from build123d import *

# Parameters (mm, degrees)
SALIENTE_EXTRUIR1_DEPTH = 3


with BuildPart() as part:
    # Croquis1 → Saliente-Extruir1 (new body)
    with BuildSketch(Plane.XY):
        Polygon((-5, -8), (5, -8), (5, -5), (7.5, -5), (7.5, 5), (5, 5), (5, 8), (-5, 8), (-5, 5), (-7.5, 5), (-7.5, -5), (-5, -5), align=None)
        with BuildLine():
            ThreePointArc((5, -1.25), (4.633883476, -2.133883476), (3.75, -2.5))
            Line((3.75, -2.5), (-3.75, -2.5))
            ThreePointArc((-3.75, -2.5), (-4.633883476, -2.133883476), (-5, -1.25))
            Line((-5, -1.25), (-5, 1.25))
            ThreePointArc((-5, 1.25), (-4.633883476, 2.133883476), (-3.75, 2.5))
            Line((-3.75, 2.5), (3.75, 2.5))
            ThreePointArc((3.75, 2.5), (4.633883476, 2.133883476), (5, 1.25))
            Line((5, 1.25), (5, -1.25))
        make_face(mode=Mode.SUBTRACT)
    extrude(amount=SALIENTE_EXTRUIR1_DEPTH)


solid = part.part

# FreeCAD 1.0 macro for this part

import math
import FreeCAD as App
import Part
import Sketcher

V = App.Vector

doc = App.newDocument("Part")
body = doc.addObject("PartDesign::Body", "Body")

# Sketch on XY plane
sketch1 = doc.addObject("Sketcher::SketchObject", "Sketch")
body.addObject(sketch1)
sketch1.AttachmentSupport = (doc.XY_Plane, [""])
sketch1.MapMode = "FlatFace"
sketch1.addGeometry([
    Part.LineSegment(V(-5, -8, 0), V(5, -8, 0)),  # 0
    Part.LineSegment(V(5, -8, 0), V(5, -5, 0)),  # 1
    Part.LineSegment(V(5, -5, 0), V(7.5, -5, 0)),  # 2
    Part.LineSegment(V(7.5, -5, 0), V(7.5, 5, 0)),  # 3
    Part.LineSegment(V(7.5, 5, 0), V(5, 5, 0)),  # 4
    Part.LineSegment(V(5, 5, 0), V(5, 8, 0)),  # 5
    Part.LineSegment(V(5, 8, 0), V(-5, 8, 0)),  # 6
    Part.LineSegment(V(-5, 8, 0), V(-5, 5, 0)),  # 7
    Part.LineSegment(V(-5, 5, 0), V(-7.5, 5, 0)),  # 8
    Part.LineSegment(V(-7.5, 5, 0), V(-7.5, -5, 0)),  # 9
    Part.LineSegment(V(-7.5, -5, 0), V(-5, -5, 0)),  # 10
    Part.LineSegment(V(-5, -5, 0), V(-5, -8, 0)),  # 11
    Part.LineSegment(V(5, 1.2, 0), V(5, -1.2, 0)),  # 12
    Part.ArcOfCircle(Part.Circle(V(3.7, -1.2, 0), V(0, 0, 1), 1.3), math.radians(-90), math.radians(0)),  # 13
    Part.LineSegment(V(3.8, -2.5, 0), V(-3.8, -2.5, 0)),  # 14
    Part.ArcOfCircle(Part.Circle(V(-3.7, -1.2, 0), V(0, 0, 1), 1.3), math.radians(-180), math.radians(-90)),  # 15
    Part.LineSegment(V(-5, -1.2, 0), V(-5, 1.2, 0)),  # 16
    Part.ArcOfCircle(Part.Circle(V(-3.7, 1.2, 0), V(0, 0, 1), 1.3), math.radians(90), math.radians(180)),  # 17
    Part.LineSegment(V(-3.8, 2.5, 0), V(3.8, 2.5, 0)),  # 18
    Part.ArcOfCircle(Part.Circle(V(3.7, 1.2, 0), V(0, 0, 1), 1.3), math.radians(0), math.radians(90)),  # 19
], False)
sketch1.addConstraint([
    Sketcher.Constraint("Coincident", 0, 2, 1, 1),
    Sketcher.Constraint("Coincident", 1, 2, 2, 1),
    Sketcher.Constraint("Coincident", 2, 2, 3, 1),
    Sketcher.Constraint("Coincident", 3, 2, 4, 1),
    Sketcher.Constraint("Coincident", 4, 2, 5, 1),
    Sketcher.Constraint("Coincident", 5, 2, 6, 1),
    Sketcher.Constraint("Coincident", 6, 2, 7, 1),
    Sketcher.Constraint("Coincident", 7, 2, 8, 1),
    Sketcher.Constraint("Coincident", 8, 2, 9, 1),
    Sketcher.Constraint("Coincident", 9, 2, 10, 1),
    Sketcher.Constraint("Coincident", 10, 2, 11, 1),
    Sketcher.Constraint("Coincident", 11, 2, 0, 1),
    Sketcher.Constraint("Tangent", 12, 2, 13, 2),
    Sketcher.Constraint("Tangent", 13, 1, 14, 1),
    Sketcher.Constraint("Tangent", 14, 2, 15, 2),
    Sketcher.Constraint("Tangent", 15, 1, 16, 1),
    Sketcher.Constraint("Tangent", 16, 2, 17, 2),
    Sketcher.Constraint("Tangent", 17, 1, 18, 1),
    Sketcher.Constraint("Tangent", 18, 2, 19, 2),
    Sketcher.Constraint("Tangent", 19, 1, 12, 1),
    Sketcher.Constraint("Horizontal", 0),
    Sketcher.Constraint("Vertical", 1),
    Sketcher.Constraint("Horizontal", 2),
    Sketcher.Constraint("Vertical", 3),
    Sketcher.Constraint("Horizontal", 4),
    Sketcher.Constraint("Vertical", 5),
    Sketcher.Constraint("Horizontal", 6),
    Sketcher.Constraint("Vertical", 7),
    Sketcher.Constraint("Horizontal", 8),
    Sketcher.Constraint("Vertical", 9),
    Sketcher.Constraint("Horizontal", 10),
    Sketcher.Constraint("Vertical", 11),
    Sketcher.Constraint("Vertical", 12),
    Sketcher.Constraint("Horizontal", 14),
    Sketcher.Constraint("Vertical", 16),
    Sketcher.Constraint("Horizontal", 18),
    Sketcher.Constraint("Equal", 13, 15),
    Sketcher.Constraint("Equal", 15, 17),
    Sketcher.Constraint("Equal", 17, 19),
    Sketcher.Constraint("Symmetric", 13, 3, 17, 3, -1, 1),
    Sketcher.Constraint("Symmetric", 0, 2, 6, 2, -1, 1),
    Sketcher.Constraint("Symmetric", 2, 2, 8, 2, -1, 1),
    Sketcher.Constraint("Symmetric", 4, 2, 10, 2, -1, 1),
    Sketcher.Constraint("Symmetric", 4, 2, 7, 2, -2),
    Sketcher.Constraint("Vertical", 5, 2, 12, 2),
    Sketcher.Constraint("Equal", 6, 3),
    Sketcher.Constraint("Equal", 10, 12),
    Sketcher.Constraint("DistanceX", 0, 1, 0, 2, 10.0),
    Sketcher.Constraint("DistanceY", 1, 1, 1, 2, 3.0),
    Sketcher.Constraint("Radius", 13, 1.25),
    Sketcher.Constraint("DistanceX", 2, 1, 2, 2, 2.5),
])
pad1 = doc.addObject("PartDesign::Pad", "Pad")
body.addObject(pad1)
pad1.Profile = sketch1
pad1.Length = 3

doc.recompute()
